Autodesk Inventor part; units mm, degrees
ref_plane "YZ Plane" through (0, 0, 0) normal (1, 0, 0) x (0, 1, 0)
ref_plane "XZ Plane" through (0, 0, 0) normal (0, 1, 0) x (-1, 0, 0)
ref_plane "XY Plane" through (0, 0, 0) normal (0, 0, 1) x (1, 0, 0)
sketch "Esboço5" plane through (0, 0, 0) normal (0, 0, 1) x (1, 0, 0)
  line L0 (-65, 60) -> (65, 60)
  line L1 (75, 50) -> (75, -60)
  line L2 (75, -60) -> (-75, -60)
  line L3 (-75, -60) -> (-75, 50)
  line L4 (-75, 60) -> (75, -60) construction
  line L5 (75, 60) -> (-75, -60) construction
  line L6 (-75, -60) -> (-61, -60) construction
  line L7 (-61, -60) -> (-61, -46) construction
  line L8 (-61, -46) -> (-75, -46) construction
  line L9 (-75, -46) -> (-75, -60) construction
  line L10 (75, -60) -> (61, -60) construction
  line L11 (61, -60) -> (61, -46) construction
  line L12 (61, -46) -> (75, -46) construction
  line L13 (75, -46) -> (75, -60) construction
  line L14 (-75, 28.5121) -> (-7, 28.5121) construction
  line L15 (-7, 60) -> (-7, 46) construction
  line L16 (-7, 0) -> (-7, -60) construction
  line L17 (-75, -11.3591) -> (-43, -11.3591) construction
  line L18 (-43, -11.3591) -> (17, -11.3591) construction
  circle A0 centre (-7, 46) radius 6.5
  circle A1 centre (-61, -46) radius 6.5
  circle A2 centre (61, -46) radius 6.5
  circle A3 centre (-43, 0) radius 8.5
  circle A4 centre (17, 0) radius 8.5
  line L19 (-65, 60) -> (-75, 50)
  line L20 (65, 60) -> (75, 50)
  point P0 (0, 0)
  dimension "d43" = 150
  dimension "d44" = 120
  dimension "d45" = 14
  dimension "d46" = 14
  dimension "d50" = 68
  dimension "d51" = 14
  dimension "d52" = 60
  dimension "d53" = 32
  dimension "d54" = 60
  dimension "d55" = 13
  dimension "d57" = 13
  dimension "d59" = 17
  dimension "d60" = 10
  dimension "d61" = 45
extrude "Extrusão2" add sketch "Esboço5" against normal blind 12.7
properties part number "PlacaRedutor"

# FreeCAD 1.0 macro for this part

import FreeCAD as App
import Part
import Sketcher
Q = App.Units.Quantity

doc = App.newDocument("Part")
body = doc.addObject("PartDesign::Body", "Body")

# Sketch on XY plane
sketch1 = doc.addObject("Sketcher::SketchObject", "Sketch")
body.addObject(sketch1)
sketch1.AttachmentSupport = (doc.XY_Plane, [""])
sketch1.MapMode = "FlatFace"
sketch1.addGeometry(Part.LineSegment(App.Vector(65, 60, 0), App.Vector(-65, 60, 0)), False)
sketch1.addGeometry(Part.LineSegment(App.Vector(-65, 60, 0), App.Vector(-75, 50, 0)), False)
sketch1.addGeometry(Part.LineSegment(App.Vector(-75, 50, 0), App.Vector(-75, -60, 0)), False)
sketch1.addGeometry(Part.LineSegment(App.Vector(-75, -60, 0), App.Vector(75, -60, 0)), False)
sketch1.addGeometry(Part.LineSegment(App.Vector(75, -60, 0), App.Vector(75, 50, 0)), False)
sketch1.addGeometry(Part.LineSegment(App.Vector(75, 50, 0), App.Vector(65, 60, 0)), False)
sketch1.addGeometry(Part.Circle(App.Vector(-61, -46, 0), App.Vector(0, 0, 1), 6.5), False)
sketch1.addGeometry(Part.Circle(App.Vector(61, -46, 0), App.Vector(0, 0, 1), 6.5), False)
sketch1.addGeometry(Part.Circle(App.Vector(-43, 0, 0), App.Vector(0, 0, 1), 8.5), False)
sketch1.addGeometry(Part.Circle(App.Vector(-7, 46, 0), App.Vector(0, 0, 1), 6.5), False)
sketch1.addGeometry(Part.Circle(App.Vector(17, 0, 0), App.Vector(0, 0, 1), 8.5), False)
sketch1.addConstraint(Sketcher.Constraint("Coincident", 0, 2, 1, 1))
sketch1.addConstraint(Sketcher.Constraint("Coincident", 1, 2, 2, 1))
sketch1.addConstraint(Sketcher.Constraint("Coincident", 2, 2, 3, 1))
sketch1.addConstraint(Sketcher.Constraint("Coincident", 3, 2, 4, 1))
sketch1.addConstraint(Sketcher.Constraint("Coincident", 4, 2, 5, 1))
sketch1.addConstraint(Sketcher.Constraint("Coincident", 5, 2, 0, 1))
sketch1.addConstraint(Sketcher.Constraint("Horizontal", 0))
sketch1.addConstraint(Sketcher.Constraint("Vertical", 2))
sketch1.addConstraint(Sketcher.Constraint("Horizontal", 3))
sketch1.addConstraint(Sketcher.Constraint("Vertical", 4))
sketch1.addConstraint(Sketcher.Constraint("Equal", 6, 7))
sketch1.addConstraint(Sketcher.Constraint("Equal", 7, 9))
sketch1.addConstraint(Sketcher.Constraint("Equal", 8, 10))
sketch1.addConstraint(Sketcher.Constraint("Symmetric", 6, 3, 7, 3, -2))
sketch1.addConstraint(Sketcher.Constraint("Symmetric", 1, 2, 4, 2, -2))
sketch1.addConstraint(Sketcher.Constraint("PointOnObject", 8, 3, -1))
sketch1.addConstraint(Sketcher.Constraint("PointOnObject", 10, 3, -1))
sketch1.addConstraint(Sketcher.Constraint("Perpendicular", 1, 5))
sketch1.addConstraint(Sketcher.Constraint("Equal", 1, 5))
sketch1.addConstraint(Sketcher.Constraint("Diameter", 6, Q("0.5118 in")))
sketch1.addConstraint(Sketcher.Constraint("Diameter", 8, Q("0.6693 in")))
sketch1.addConstraint(Sketcher.Constraint("DistanceX", 3, 1, 3, 2, Q("5.9055 in")))
sketch1.addConstraint(Sketcher.Constraint("DistanceX", -1, 1, 10, 3, Q("0.6693 in")))
sketch1.addConstraint(Sketcher.Constraint("DistanceY", -1, 1, 0, 2, Q("2.3622 in")))
sketch1.addConstraint(Sketcher.Constraint("DistanceY", 2, 2, -1, 1, Q("2.3622 in")))
sketch1.addConstraint(Sketcher.Constraint("DistanceX", 8, 3, 10, 3, Q("2.3622 in")))
sketch1.addConstraint(Sketcher.Constraint("DistanceX", 1, 2, 0, 2, Q("0.3937 in")))
sketch1.addConstraint(Sketcher.Constraint("DistanceX", 9, 3, 7, 3, Q("68 mm")))
sketch1.addConstraint(Sketcher.Constraint("DistanceY", 9, 3, 0, 2, Q("14 mm")))
sketch1.addConstraint(Sketcher.Constraint("DistanceX", 1, 2, 9, 3, Q("68 mm")))
sketch1.addConstraint(Sketcher.Constraint("DistanceY", 2, 2, 6, 3, Q("14 mm")))
pad1 = doc.addObject("PartDesign::Pad", "Pad")
body.addObject(pad1)
pad1.Profile = sketch1
pad1.Length = Q("0.5 in")
pad1.Reversed = True

doc.recompute()
